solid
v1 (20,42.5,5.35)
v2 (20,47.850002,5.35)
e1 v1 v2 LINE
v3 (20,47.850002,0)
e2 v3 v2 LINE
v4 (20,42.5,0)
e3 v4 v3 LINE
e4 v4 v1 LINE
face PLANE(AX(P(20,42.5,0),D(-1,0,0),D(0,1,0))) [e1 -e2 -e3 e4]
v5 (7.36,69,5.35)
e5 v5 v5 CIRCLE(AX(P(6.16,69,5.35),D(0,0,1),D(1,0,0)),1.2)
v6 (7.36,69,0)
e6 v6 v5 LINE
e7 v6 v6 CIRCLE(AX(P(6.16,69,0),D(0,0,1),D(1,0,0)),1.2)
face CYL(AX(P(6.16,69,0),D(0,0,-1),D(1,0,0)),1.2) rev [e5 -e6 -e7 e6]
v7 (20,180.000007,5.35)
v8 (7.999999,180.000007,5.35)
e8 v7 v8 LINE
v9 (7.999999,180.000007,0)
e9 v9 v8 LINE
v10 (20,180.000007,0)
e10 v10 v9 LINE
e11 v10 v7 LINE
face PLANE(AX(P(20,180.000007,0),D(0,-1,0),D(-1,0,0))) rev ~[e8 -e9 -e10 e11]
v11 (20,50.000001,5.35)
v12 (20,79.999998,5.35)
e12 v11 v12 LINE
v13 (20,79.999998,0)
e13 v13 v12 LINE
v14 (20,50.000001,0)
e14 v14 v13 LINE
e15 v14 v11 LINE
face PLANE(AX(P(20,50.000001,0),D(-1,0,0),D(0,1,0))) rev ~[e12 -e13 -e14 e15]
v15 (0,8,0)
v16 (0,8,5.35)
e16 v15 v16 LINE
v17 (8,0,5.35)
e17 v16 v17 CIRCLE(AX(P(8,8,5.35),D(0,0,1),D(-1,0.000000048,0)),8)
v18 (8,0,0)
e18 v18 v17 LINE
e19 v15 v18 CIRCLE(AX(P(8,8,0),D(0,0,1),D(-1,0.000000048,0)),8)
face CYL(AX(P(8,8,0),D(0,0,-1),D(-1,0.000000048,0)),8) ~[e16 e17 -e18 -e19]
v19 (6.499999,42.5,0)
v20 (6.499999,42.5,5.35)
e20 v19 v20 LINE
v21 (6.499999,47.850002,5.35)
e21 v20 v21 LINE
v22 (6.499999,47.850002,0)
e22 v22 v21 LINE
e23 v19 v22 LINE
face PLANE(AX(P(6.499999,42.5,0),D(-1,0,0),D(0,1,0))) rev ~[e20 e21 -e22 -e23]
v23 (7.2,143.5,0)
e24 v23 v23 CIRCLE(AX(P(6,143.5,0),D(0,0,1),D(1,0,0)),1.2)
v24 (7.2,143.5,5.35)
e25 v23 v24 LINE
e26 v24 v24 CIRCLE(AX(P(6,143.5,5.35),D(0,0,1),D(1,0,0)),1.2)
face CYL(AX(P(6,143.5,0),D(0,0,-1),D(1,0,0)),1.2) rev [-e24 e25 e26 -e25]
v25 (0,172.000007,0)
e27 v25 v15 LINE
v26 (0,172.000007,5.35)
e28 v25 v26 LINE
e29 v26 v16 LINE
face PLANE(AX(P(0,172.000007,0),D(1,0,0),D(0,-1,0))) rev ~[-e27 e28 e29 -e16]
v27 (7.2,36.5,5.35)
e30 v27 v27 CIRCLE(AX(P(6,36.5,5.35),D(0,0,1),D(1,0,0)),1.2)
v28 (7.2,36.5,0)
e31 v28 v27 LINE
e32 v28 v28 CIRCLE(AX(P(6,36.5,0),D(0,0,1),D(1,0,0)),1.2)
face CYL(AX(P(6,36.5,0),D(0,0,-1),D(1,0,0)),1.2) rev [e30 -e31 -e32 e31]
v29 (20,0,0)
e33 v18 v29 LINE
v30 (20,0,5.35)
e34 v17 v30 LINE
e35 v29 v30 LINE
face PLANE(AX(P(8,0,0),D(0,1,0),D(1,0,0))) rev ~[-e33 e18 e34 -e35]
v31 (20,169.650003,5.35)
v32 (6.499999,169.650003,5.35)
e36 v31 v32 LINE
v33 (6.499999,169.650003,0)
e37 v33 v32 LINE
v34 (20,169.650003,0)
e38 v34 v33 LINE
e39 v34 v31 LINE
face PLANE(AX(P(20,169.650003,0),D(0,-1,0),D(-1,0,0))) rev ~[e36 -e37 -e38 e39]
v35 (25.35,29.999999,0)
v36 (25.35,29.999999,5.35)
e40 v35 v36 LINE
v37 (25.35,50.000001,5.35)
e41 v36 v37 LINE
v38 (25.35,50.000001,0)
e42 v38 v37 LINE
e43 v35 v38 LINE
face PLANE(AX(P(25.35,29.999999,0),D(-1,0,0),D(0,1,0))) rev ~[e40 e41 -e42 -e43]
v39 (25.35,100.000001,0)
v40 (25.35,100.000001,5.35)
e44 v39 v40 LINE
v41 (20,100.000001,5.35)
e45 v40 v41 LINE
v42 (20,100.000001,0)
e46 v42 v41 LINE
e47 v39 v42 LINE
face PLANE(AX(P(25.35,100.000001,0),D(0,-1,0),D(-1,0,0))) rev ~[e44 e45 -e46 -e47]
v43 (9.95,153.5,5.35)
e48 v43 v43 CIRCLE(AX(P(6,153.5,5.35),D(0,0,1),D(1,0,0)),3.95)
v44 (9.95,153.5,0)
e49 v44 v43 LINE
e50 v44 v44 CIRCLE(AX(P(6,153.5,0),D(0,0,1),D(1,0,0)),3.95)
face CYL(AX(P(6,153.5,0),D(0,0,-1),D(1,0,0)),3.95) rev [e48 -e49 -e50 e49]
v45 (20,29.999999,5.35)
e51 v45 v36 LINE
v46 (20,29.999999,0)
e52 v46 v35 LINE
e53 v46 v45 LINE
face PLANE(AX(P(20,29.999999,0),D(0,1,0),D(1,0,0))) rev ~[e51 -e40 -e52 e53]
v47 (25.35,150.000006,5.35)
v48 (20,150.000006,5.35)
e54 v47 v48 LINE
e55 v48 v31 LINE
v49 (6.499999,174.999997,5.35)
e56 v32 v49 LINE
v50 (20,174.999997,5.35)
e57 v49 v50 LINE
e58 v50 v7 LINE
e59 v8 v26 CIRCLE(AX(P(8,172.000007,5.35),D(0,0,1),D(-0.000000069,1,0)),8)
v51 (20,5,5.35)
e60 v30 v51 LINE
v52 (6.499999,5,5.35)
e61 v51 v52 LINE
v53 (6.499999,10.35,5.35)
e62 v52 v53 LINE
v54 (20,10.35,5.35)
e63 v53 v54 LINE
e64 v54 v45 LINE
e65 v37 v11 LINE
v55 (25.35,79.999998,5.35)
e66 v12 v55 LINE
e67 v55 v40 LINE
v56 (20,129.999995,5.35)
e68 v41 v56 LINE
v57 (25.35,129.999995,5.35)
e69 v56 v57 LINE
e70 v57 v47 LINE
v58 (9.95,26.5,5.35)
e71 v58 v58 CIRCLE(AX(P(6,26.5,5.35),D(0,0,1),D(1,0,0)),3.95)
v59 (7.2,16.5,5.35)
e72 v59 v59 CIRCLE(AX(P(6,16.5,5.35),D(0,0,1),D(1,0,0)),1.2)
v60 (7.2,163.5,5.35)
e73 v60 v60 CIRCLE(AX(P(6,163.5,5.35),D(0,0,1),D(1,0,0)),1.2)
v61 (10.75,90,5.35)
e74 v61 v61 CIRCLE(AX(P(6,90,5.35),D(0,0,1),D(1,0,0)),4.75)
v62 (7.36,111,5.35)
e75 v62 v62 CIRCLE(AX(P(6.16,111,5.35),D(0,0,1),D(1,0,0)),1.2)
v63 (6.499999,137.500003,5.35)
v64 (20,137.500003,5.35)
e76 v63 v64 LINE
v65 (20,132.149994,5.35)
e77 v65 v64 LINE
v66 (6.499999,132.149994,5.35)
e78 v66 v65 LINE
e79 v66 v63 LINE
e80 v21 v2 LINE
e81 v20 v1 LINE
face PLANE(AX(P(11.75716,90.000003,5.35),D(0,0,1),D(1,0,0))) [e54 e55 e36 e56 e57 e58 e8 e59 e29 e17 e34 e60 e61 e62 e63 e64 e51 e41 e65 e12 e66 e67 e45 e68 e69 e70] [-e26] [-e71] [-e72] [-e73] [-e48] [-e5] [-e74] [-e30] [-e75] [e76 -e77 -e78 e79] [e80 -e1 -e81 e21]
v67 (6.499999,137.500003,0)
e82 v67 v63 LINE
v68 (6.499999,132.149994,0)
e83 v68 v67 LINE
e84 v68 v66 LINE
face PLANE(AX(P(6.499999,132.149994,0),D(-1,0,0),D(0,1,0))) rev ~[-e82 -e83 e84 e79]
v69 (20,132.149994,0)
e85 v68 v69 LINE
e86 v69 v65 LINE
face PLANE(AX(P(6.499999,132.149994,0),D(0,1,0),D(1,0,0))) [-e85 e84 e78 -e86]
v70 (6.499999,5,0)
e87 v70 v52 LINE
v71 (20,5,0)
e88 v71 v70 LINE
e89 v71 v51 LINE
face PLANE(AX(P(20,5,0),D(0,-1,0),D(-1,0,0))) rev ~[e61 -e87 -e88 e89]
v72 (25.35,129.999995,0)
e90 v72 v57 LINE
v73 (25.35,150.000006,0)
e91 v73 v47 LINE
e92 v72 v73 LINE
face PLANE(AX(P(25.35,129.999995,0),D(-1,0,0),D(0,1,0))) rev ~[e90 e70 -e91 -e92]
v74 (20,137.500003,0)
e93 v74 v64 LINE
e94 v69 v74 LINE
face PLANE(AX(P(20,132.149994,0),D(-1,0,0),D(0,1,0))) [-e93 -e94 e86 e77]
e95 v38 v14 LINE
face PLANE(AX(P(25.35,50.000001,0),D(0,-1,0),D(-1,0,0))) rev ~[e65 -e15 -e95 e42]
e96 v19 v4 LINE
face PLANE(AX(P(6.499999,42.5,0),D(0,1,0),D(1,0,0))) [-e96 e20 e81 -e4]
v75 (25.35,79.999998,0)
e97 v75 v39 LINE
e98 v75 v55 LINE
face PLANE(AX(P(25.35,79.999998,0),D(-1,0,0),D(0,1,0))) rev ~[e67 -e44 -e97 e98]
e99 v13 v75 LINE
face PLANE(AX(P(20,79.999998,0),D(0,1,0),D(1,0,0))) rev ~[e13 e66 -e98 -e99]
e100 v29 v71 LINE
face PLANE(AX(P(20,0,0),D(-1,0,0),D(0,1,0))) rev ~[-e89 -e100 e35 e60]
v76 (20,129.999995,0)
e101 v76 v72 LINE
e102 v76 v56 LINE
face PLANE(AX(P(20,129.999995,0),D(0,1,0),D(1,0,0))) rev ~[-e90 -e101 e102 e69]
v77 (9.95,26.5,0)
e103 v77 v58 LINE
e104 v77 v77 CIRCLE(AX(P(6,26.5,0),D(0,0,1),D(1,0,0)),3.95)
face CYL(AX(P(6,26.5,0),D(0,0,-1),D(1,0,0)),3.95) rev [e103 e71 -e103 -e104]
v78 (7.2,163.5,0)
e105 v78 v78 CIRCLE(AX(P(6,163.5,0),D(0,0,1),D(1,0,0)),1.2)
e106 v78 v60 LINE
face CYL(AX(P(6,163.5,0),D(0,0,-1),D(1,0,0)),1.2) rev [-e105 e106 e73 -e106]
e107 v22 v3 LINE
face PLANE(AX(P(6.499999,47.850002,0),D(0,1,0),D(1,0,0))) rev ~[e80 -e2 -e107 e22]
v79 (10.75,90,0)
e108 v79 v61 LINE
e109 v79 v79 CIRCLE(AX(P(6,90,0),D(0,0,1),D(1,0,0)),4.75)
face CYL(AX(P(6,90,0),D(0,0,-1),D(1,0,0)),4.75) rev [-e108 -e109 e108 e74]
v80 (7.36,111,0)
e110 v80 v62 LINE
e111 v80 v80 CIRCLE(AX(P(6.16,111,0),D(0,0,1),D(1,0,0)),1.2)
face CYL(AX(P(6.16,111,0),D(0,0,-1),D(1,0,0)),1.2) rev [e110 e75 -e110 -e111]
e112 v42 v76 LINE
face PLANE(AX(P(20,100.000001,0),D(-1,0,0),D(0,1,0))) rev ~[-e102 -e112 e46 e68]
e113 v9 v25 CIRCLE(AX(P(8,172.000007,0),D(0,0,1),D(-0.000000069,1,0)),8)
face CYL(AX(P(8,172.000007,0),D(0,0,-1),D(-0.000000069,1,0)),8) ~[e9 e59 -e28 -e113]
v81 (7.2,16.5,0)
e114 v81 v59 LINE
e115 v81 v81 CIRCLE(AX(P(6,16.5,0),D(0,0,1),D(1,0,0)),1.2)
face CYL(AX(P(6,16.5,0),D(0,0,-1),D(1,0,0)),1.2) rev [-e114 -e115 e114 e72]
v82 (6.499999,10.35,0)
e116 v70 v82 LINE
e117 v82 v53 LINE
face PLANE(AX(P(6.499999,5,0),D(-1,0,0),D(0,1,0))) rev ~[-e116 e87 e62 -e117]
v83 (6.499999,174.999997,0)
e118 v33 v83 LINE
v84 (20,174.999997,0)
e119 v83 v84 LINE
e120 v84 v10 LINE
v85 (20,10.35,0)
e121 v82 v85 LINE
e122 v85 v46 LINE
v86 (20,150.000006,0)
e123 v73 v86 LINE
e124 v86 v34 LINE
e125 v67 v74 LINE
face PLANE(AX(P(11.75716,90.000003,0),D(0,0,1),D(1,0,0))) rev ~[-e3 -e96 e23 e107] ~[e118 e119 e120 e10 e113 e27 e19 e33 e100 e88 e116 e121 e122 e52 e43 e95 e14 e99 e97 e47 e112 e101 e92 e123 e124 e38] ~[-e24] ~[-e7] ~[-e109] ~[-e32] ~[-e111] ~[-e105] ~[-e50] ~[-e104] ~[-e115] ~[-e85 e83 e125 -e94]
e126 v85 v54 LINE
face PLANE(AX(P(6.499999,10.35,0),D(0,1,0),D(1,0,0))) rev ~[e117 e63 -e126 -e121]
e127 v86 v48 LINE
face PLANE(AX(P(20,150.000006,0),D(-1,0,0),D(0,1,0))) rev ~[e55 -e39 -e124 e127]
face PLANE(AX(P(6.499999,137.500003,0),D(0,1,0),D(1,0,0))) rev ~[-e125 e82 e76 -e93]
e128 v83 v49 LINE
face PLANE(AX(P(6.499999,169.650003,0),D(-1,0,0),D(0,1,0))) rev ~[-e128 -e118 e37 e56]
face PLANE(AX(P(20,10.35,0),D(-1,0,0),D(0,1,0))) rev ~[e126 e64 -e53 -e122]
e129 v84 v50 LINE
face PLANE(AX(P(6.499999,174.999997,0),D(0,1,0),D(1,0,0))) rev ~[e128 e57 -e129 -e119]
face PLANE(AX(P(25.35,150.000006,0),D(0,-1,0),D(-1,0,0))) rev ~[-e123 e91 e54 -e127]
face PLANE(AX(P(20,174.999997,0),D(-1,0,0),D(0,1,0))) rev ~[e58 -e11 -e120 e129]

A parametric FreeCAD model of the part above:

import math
import FreeCAD as App
import Part
import Sketcher

doc = App.newDocument("Part")
params = doc.addObject("Spreadsheet::Sheet", "Params")
for row, (alias, value) in enumerate([
    ("sketch1_radius", "8 mm"),
    ("sketch1_diameter", "2.4 mm"),
    ("sketch1_diameter2", "7.9 mm"),
    ("sketch1_diameter3", "9.5 mm"),
    ("sketch1_width", "12 mm"),
    ("pad1_length", "5.35 mm"),
], start=1):
    params.set(f"A{row}", alias)
    params.set(f"B{row}", "=" + value)
    params.setAlias(f"B{row}", alias)

body = doc.addObject("PartDesign::Body", "Body")

sketch1 = body.newObject("Sketcher::SketchObject", "Sketch")
sketch1.AttachmentSupport = (doc.getObject("XY_Plane"), [""])
sketch1.MapMode = "FlatFace"
sketch1.addGeometry([
    Part.LineSegment(App.Vector(20, 174.999997, 0), App.Vector(20, 180.000007, 0)),
    Part.LineSegment(App.Vector(20, 180.000007, 0), App.Vector(7.999999, 180.000007, 0)),
    Part.ArcOfCircle(Part.Circle(App.Vector(8, 172.000007, 0), App.Vector(0, 0, 1), 8), math.radians(90.000004), math.radians(180)),
    Part.LineSegment(App.Vector(0, 172.000007, 0), App.Vector(0, 8, 0)),
    Part.ArcOfCircle(Part.Circle(App.Vector(8, 8, 0), App.Vector(0, 0, 1), 8), math.radians(179.999997), math.radians(270)),
    Part.LineSegment(App.Vector(8, 0, 0), App.Vector(20, 0, 0)),
    Part.LineSegment(App.Vector(20, 0, 0), App.Vector(20, 5, 0)),
    Part.LineSegment(App.Vector(20, 5, 0), App.Vector(6.499999, 5, 0)),
    Part.LineSegment(App.Vector(6.499999, 5, 0), App.Vector(6.499999, 10.35, 0)),
    Part.LineSegment(App.Vector(6.499999, 10.35, 0), App.Vector(20, 10.35, 0)),
    Part.LineSegment(App.Vector(20, 10.35, 0), App.Vector(20, 29.999999, 0)),
    Part.LineSegment(App.Vector(20, 29.999999, 0), App.Vector(25.35, 29.999999, 0)),
    Part.LineSegment(App.Vector(25.35, 29.999999, 0), App.Vector(25.35, 50.000001, 0)),
    Part.LineSegment(App.Vector(25.35, 50.000001, 0), App.Vector(20, 50.000001, 0)),
    Part.LineSegment(App.Vector(20, 50.000001, 0), App.Vector(20, 79.999998, 0)),
    Part.LineSegment(App.Vector(20, 79.999998, 0), App.Vector(25.35, 79.999998, 0)),
    Part.LineSegment(App.Vector(25.35, 79.999998, 0), App.Vector(25.35, 100.000001, 0)),
    Part.LineSegment(App.Vector(25.35, 100.000001, 0), App.Vector(20, 100.000001, 0)),
    Part.LineSegment(App.Vector(20, 100.000001, 0), App.Vector(20, 129.999995, 0)),
    Part.LineSegment(App.Vector(20, 129.999995, 0), App.Vector(25.35, 129.999995, 0)),
    Part.LineSegment(App.Vector(25.35, 129.999995, 0), App.Vector(25.35, 150.000006, 0)),
    Part.LineSegment(App.Vector(25.35, 150.000006, 0), App.Vector(20, 150.000006, 0)),
    Part.LineSegment(App.Vector(20, 150.000006, 0), App.Vector(20, 169.650003, 0)),
    Part.LineSegment(App.Vector(20, 169.650003, 0), App.Vector(6.499999, 169.650003, 0)),
    Part.LineSegment(App.Vector(6.499999, 169.650003, 0), App.Vector(6.499999, 174.999997, 0)),
    Part.LineSegment(App.Vector(6.499999, 174.999997, 0), App.Vector(20, 174.999997, 0)),
    Part.Circle(App.Vector(6, 16.5, 0), App.Vector(0, 0, 1), 1.2),
    Part.Circle(App.Vector(6, 26.5, 0), App.Vector(0, 0, 1), 3.95),
    Part.Circle(App.Vector(6, 36.5, 0), App.Vector(0, 0, 1), 1.2),
    Part.Circle(App.Vector(6.16, 69, 0), App.Vector(0, 0, 1), 1.2),
    Part.LineSegment(App.Vector(20, 42.5, 0), App.Vector(6.499999, 42.5, 0)),
    Part.LineSegment(App.Vector(6.499999, 42.5, 0), App.Vector(6.499999, 47.850002, 0)),
    Part.LineSegment(App.Vector(6.499999, 47.850002, 0), App.Vector(20, 47.850002, 0)),
    Part.LineSegment(App.Vector(20, 47.850002, 0), App.Vector(20, 42.5, 0)),
    Part.Circle(App.Vector(6, 90, 0), App.Vector(0, 0, 1), 4.75),
    Part.Circle(App.Vector(6.16, 111, 0), App.Vector(0, 0, 1), 1.2),
    Part.Circle(App.Vector(6, 143.5, 0), App.Vector(0, 0, 1), 1.2),
    Part.Circle(App.Vector(6, 153.5, 0), App.Vector(0, 0, 1), 3.95),
    Part.Circle(App.Vector(6, 163.5, 0), App.Vector(0, 0, 1), 1.2),
    Part.LineSegment(App.Vector(20, 132.149994, 0), App.Vector(6.499999, 132.149994, 0)),
    Part.LineSegment(App.Vector(6.499999, 132.149994, 0), App.Vector(6.499999, 137.500003, 0)),
    Part.LineSegment(App.Vector(6.499999, 137.500003, 0), App.Vector(20, 137.500003, 0)),
    Part.LineSegment(App.Vector(20, 137.500003, 0), App.Vector(20, 132.149994, 0)),
], False)
sketch1.addConstraint([
    Sketcher.Constraint("Coincident", 0, 2, 1, 1),
    Sketcher.Constraint("Tangent", 1, 2, 2, 1),
    Sketcher.Constraint("Tangent", 2, 2, 3, 1),
    Sketcher.Constraint("Tangent", 3, 2, 4, 1),
    Sketcher.Constraint("Tangent", 4, 2, 5, 1),
    Sketcher.Constraint("Coincident", 5, 2, 6, 1),
    Sketcher.Constraint("Coincident", 6, 2, 7, 1),
    Sketcher.Constraint("Coincident", 7, 2, 8, 1),
    Sketcher.Constraint("Coincident", 8, 2, 9, 1),
    Sketcher.Constraint("Coincident", 9, 2, 10, 1),
    Sketcher.Constraint("Coincident", 10, 2, 11, 1),
    Sketcher.Constraint("Coincident", 11, 2, 12, 1),
    Sketcher.Constraint("Coincident", 12, 2, 13, 1),
    Sketcher.Constraint("Coincident", 13, 2, 14, 1),
    Sketcher.Constraint("Coincident", 14, 2, 15, 1),
    Sketcher.Constraint("Coincident", 15, 2, 16, 1),
    Sketcher.Constraint("Coincident", 16, 2, 17, 1),
    Sketcher.Constraint("Coincident", 17, 2, 18, 1),
    Sketcher.Constraint("Coincident", 18, 2, 19, 1),
    Sketcher.Constraint("Coincident", 19, 2, 20, 1),
    Sketcher.Constraint("Coincident", 20, 2, 21, 1),
    Sketcher.Constraint("Coincident", 21, 2, 22, 1),
    Sketcher.Constraint("Coincident", 22, 2, 23, 1),
    Sketcher.Constraint("Coincident", 23, 2, 24, 1),
    Sketcher.Constraint("Coincident", 24, 2, 25, 1),
    Sketcher.Constraint("Coincident", 25, 2, 0, 1),
    Sketcher.Constraint("Coincident", 30, 2, 31, 1),
    Sketcher.Constraint("Coincident", 31, 2, 32, 1),
    Sketcher.Constraint("Coincident", 32, 2, 33, 1),
    Sketcher.Constraint("Coincident", 33, 2, 30, 1),
    Sketcher.Constraint("Coincident", 39, 2, 40, 1),
    Sketcher.Constraint("Coincident", 40, 2, 41, 1),
    Sketcher.Constraint("Coincident", 41, 2, 42, 1),
    Sketcher.Constraint("Coincident", 42, 2, 39, 1),
    Sketcher.Constraint("Vertical", 0),
    Sketcher.Constraint("Horizontal", 1),
    Sketcher.Constraint("Vertical", 3),
    Sketcher.Constraint("Horizontal", 5),
    Sketcher.Constraint("Vertical", 6),
    Sketcher.Constraint("Horizontal", 7),
    Sketcher.Constraint("Vertical", 8),
    Sketcher.Constraint("Horizontal", 9),
    Sketcher.Constraint("Vertical", 10),
    Sketcher.Constraint("Horizontal", 11),
    Sketcher.Constraint("Vertical", 12),
    Sketcher.Constraint("Horizontal", 13),
    Sketcher.Constraint("Vertical", 14),
    Sketcher.Constraint("Horizontal", 15),
    Sketcher.Constraint("Vertical", 16),
    Sketcher.Constraint("Horizontal", 17),
    Sketcher.Constraint("Vertical", 18),
    Sketcher.Constraint("Horizontal", 19),
    Sketcher.Constraint("Vertical", 20),
    Sketcher.Constraint("Horizontal", 21),
    Sketcher.Constraint("Vertical", 22),
    Sketcher.Constraint("Horizontal", 23),
    Sketcher.Constraint("Vertical", 24),
    Sketcher.Constraint("Horizontal", 25),
    Sketcher.Constraint("Horizontal", 30),
    Sketcher.Constraint("Vertical", 31),
    Sketcher.Constraint("Horizontal", 32),
    Sketcher.Constraint("Vertical", 33),
    Sketcher.Constraint("Horizontal", 39),
    Sketcher.Constraint("Vertical", 40),
    Sketcher.Constraint("Horizontal", 41),
    Sketcher.Constraint("Vertical", 42),
    Sketcher.Constraint("Equal", 2, 4),
    Sketcher.Constraint("Equal", 26, 28),
    Sketcher.Constraint("Equal", 28, 29),
    Sketcher.Constraint("Equal", 29, 35),
    Sketcher.Constraint("Equal", 35, 36),
    Sketcher.Constraint("Equal", 27, 37),
    Sketcher.Constraint("Equal", 36, 38),
    Sketcher.Constraint("PointOnObject", 2, 2, -2),
    Sketcher.Constraint("PointOnObject", 4, 2, -1),
    Sketcher.Constraint("Vertical", 26, 3, 27, 3),
    Sketcher.Constraint("Vertical", 27, 3, 28, 3),
    Sketcher.Constraint("Vertical", 28, 3, 34, 3),
    Sketcher.Constraint("Vertical", 29, 3, 35, 3),
    Sketcher.Constraint("Vertical", 34, 3, 36, 3),
    Sketcher.Constraint("Vertical", 36, 3, 37, 3),
    Sketcher.Constraint("Vertical", 37, 3, 38, 3),
    Sketcher.Constraint("Vertical", 0, 2, 5, 2),
    Sketcher.Constraint("Vertical", 6, 2, 9, 2),
    Sketcher.Constraint("Vertical", 10, 2, 13, 2),
    Sketcher.Constraint("Vertical", 12, 2, 15, 2),
    Sketcher.Constraint("Vertical", 14, 2, 17, 2),
    Sketcher.Constraint("Vertical", 16, 2, 19, 2),
    Sketcher.Constraint("Vertical", 18, 2, 21, 2),
    Sketcher.Constraint("Vertical", 8, 2, 23, 2),
    Sketcher.Constraint("Vertical", 24, 2, 30, 2),
    Sketcher.Constraint("Vertical", 25, 2, 32, 2),
    Sketcher.Constraint("Vertical", 31, 2, 39, 2),
    Sketcher.Constraint("Vertical", 33, 2, 41, 2),
    Sketcher.Constraint("Equal", 21, 8),
    Sketcher.Constraint("Equal", 12, 16),
    Sketcher.Constraint("Equal", 10, 22),
    Sketcher.Constraint("Equal", 8, 31),
    Sketcher.Constraint("Radius", 2, 8.0),
    Sketcher.Constraint("Diameter", 26, 2.4),
    Sketcher.Constraint("Diameter", 27, 7.9),
    Sketcher.Constraint("Diameter", 34, 9.5),
    Sketcher.Constraint("DistanceX", 1, 2, 1, 1, 12.0),
    Sketcher.Constraint("DistanceY", 6, 1, 6, 2, 5.0),
    Sketcher.Constraint("DistanceY", 12, 1, 12, 2, 20.000001),
    Sketcher.Constraint("DistanceX", 7, 2, 7, 1, 13.5),
    Sketcher.Constraint("DistanceX", -1, 1, 26, 3, 6.0),
    Sketcher.Constraint("DistanceY", -1, 1, 29, 3, 69.0),
    Sketcher.Constraint("DistanceY", -1, 1, 34, 3, 90.0),
    Sketcher.Constraint("DistanceY", -1, 1, 35, 3, 111.0),
    Sketcher.Constraint("DistanceY", -1, 1, 10, 2, 29.999999),
    Sketcher.Constraint("DistanceY", -1, 1, 14, 2, 79.999998),
    Sketcher.Constraint("DistanceY", 26, 3, 27, 3, 10.0),
    Sketcher.Constraint("DistanceY", 27, 3, 28, 3, 10.0),
    Sketcher.Constraint("DistanceY", 28, 3, 36, 3, 107.0),
    Sketcher.Constraint("DistanceY", 36, 3, 37, 3, 10.0),
    Sketcher.Constraint("DistanceY", 37, 3, 38, 3, 10.0),
    Sketcher.Constraint("DistanceY", 28, 3, 30, 2, 6.0),
    Sketcher.Constraint("DistanceX", 11, 1, 11, 2, 5.35),
    Sketcher.Constraint("DistanceY", -1, 1, 26, 3, 16.5),
    Sketcher.Constraint("DistanceX", -1, 1, 29, 3, 6.16),
    Sketcher.Constraint("DistanceY", 18, 2, 39, 2, 2.149999),
    Sketcher.Constraint("DistanceY", 0, 1, 0, 2, 5.00001),
    Sketcher.Constraint("DistanceY", 20, 1, 20, 2, 20.000011),
    Sketcher.Constraint("DistanceY", 40, 1, 40, 2, 5.350009),
    Sketcher.Constraint("DistanceY", 3, 2, 3, 1, 164.000007),
    Sketcher.Constraint("DistanceY", 18, 1, 18, 2, 29.999994),
])
sketch1.setExpression("Constraints[98]", "Params.sketch1_radius")
sketch1.setExpression("Constraints[99]", "Params.sketch1_diameter")
sketch1.setExpression("Constraints[100]", "Params.sketch1_diameter2")
sketch1.setExpression("Constraints[101]", "Params.sketch1_diameter3")
sketch1.setExpression("Constraints[102]", "Params.sketch1_width")
pad1 = body.newObject("PartDesign::Pad", "Pad")
pad1.Profile = sketch1
pad1.setExpression("Length", "Params.pad1_length")

doc.recompute()
